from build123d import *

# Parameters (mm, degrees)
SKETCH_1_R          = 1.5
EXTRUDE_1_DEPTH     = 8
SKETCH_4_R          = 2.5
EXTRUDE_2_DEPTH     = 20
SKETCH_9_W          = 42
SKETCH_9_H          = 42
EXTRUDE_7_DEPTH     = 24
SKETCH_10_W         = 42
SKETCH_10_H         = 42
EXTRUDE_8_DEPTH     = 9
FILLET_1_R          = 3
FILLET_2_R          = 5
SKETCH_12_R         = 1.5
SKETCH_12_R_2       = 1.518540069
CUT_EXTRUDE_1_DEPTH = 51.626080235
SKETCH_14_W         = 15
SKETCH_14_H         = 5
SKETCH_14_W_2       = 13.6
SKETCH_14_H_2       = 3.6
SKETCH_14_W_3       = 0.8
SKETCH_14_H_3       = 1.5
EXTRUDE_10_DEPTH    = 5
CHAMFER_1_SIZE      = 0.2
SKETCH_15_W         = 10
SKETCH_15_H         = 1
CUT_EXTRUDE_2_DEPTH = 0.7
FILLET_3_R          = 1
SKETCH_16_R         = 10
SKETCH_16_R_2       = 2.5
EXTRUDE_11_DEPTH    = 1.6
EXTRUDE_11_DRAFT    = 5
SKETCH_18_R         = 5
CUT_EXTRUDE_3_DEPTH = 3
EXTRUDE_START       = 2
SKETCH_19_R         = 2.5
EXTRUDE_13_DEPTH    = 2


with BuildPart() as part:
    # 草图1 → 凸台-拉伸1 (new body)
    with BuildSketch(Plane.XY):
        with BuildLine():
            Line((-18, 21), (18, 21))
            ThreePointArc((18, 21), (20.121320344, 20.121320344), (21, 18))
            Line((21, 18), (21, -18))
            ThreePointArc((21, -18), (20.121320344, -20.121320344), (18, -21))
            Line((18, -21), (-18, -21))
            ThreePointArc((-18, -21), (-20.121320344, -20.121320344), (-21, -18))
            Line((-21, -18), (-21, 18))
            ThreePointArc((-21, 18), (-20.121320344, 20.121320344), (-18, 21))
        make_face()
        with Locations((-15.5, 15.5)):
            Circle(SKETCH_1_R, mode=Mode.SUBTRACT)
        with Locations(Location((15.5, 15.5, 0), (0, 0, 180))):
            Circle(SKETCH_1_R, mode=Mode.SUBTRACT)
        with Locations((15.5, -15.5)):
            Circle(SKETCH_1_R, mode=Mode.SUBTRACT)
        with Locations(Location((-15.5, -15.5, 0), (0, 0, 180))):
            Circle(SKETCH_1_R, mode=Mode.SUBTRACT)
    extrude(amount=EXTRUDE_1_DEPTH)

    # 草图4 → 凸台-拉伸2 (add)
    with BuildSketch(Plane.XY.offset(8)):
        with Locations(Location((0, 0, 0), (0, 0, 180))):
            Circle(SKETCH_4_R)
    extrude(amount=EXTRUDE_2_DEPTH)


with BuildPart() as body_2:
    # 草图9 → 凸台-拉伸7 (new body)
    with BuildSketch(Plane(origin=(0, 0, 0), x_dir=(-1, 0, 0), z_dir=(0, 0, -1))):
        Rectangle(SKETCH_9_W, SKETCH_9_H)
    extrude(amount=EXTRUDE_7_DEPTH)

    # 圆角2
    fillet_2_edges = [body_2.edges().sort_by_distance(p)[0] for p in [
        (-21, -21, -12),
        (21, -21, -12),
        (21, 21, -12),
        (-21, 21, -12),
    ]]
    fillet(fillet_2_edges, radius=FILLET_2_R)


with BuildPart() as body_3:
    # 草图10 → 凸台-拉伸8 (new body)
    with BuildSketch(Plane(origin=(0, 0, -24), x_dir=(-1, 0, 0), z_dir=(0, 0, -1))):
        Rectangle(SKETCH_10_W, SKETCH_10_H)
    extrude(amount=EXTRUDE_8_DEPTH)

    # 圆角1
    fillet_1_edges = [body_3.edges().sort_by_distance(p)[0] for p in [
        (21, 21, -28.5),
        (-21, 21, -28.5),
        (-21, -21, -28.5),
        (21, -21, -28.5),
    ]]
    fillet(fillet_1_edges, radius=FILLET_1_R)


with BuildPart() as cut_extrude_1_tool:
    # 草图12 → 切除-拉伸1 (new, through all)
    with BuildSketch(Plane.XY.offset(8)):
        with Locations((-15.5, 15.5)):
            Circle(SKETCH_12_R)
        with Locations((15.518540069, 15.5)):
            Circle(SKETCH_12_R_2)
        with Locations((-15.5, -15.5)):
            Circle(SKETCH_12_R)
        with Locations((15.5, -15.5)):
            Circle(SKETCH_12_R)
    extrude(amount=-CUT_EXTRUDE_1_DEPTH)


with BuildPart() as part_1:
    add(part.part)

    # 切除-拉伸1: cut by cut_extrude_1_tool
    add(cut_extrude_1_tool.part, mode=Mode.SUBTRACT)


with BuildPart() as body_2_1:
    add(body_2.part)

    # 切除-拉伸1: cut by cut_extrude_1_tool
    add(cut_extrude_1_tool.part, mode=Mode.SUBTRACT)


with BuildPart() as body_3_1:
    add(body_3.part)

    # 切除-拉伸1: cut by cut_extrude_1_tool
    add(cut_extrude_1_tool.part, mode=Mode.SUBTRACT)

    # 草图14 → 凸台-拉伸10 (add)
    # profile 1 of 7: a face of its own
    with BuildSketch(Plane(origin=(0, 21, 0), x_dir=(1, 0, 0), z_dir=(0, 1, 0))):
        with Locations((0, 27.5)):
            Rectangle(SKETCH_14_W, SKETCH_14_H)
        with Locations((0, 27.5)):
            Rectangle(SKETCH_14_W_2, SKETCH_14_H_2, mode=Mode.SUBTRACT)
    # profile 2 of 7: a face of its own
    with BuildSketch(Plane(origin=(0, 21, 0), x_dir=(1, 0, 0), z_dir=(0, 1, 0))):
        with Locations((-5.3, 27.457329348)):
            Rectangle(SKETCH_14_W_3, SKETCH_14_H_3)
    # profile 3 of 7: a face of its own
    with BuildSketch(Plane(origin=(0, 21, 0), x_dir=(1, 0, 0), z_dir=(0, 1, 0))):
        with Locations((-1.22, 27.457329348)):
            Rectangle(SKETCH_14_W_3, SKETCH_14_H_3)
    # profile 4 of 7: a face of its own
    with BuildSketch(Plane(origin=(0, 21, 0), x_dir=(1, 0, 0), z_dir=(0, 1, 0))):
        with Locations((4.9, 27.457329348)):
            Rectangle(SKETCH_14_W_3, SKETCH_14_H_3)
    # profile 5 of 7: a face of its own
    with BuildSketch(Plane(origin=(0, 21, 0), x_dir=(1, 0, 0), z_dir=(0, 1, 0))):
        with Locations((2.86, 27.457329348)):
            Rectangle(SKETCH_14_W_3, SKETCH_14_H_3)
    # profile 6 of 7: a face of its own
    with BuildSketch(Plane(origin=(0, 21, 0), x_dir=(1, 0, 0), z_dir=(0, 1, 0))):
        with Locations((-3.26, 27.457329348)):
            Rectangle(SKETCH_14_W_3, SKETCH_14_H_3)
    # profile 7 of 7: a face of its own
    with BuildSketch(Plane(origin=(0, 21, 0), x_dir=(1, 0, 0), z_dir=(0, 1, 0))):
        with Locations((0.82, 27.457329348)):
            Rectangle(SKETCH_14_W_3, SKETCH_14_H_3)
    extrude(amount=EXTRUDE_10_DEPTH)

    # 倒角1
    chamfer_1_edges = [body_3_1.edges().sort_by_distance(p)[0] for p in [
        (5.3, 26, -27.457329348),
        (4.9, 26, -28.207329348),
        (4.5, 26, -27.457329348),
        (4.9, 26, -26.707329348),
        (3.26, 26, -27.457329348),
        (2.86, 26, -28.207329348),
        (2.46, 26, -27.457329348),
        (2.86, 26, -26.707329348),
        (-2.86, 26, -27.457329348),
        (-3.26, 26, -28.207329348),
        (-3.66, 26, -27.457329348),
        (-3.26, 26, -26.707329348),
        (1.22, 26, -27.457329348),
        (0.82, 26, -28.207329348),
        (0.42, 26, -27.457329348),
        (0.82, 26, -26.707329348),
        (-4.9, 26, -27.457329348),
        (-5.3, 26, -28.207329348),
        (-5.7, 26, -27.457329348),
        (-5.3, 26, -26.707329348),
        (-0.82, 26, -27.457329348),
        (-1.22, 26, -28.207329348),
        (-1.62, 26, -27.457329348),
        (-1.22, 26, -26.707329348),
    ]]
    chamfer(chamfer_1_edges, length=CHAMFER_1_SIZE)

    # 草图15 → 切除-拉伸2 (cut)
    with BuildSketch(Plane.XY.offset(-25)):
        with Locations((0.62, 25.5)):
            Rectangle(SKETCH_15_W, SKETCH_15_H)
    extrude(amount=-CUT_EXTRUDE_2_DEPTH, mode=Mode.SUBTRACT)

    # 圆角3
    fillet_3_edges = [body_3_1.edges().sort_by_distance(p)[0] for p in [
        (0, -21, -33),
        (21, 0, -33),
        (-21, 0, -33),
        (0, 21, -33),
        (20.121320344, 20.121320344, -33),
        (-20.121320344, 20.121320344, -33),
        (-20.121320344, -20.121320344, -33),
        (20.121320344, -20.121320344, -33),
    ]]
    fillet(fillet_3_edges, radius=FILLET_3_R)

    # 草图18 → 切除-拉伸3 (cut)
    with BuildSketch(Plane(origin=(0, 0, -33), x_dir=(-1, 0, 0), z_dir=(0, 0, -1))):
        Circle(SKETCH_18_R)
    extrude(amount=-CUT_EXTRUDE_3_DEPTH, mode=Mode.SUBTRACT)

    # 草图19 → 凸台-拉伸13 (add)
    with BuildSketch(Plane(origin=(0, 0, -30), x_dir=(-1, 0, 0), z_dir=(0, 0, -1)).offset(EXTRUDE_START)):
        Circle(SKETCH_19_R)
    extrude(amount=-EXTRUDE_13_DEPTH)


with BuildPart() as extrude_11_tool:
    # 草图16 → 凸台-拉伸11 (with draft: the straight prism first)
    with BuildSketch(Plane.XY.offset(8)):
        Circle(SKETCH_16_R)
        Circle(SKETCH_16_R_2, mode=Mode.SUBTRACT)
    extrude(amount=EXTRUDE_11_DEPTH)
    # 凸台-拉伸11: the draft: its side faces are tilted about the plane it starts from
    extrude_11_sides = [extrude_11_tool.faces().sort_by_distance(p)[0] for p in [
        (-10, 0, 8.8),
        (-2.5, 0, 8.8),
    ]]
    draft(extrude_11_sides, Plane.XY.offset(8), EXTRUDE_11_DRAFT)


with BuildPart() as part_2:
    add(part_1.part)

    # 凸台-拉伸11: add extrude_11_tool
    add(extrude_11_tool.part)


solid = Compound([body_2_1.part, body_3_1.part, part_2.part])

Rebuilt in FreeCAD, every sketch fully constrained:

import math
import FreeCAD as App
import Part
import Sketcher
Q = App.Units.Quantity


def edges_at(feature, points):
    """Names of the edges that pass closest to the given points."""
    edges = feature.Shape.Edges
    near = lambda p: min(range(len(edges)), key=lambda i: edges[i].distToShape(Part.Vertex(*p))[0])
    return sorted({f"Edge{near(p) + 1}" for p in points})


def faces_at(feature, points):
    """Names of the faces that lie closest to the given points."""
    faces = feature.Shape.Faces
    near = lambda p: min(range(len(faces)), key=lambda i: faces[i].distToShape(Part.Vertex(*p))[0])
    return sorted({f"Face{near(p) + 1}" for p in points})


def add_polygon(sketch, points):
    """Adds a closed chain of lines whose ends are joined by coincident constraints."""
    first, n = sketch.GeometryCount, len(points)
    for a, b in zip(points, points[1:] + points[:1]):
        sketch.addGeometry(Part.LineSegment(App.Vector(*a, 0), App.Vector(*b, 0)), False)
    for i in range(n):
        sketch.addConstraint(Sketcher.Constraint("Coincident", first + i, 2, first + (i + 1) % n, 1))

doc = App.newDocument("Part")
body = doc.addObject("PartDesign::Body", "Body")

sketch1 = body.newObject("Sketcher::SketchObject", "Sketch")
sketch1.AttachmentSupport = (doc.getObject("XY_Plane"), [""])
sketch1.MapMode = "FlatFace"
sketch1.addGeometry([
    Part.LineSegment(App.Vector(18, 21, 0), App.Vector(-18, 21, 0)),
    Part.ArcOfCircle(Part.Circle(App.Vector(-18, 18, 0), App.Vector(0, 0, 1), 3), math.radians(90), math.radians(180)),
    Part.LineSegment(App.Vector(-21, 18, 0), App.Vector(-21, -18, 0)),
    Part.ArcOfCircle(Part.Circle(App.Vector(-18, -18, 0), App.Vector(0, 0, 1), 3), math.radians(180), math.radians(270)),
    Part.LineSegment(App.Vector(-18, -21, 0), App.Vector(18, -21, 0)),
    Part.ArcOfCircle(Part.Circle(App.Vector(18, -18, 0), App.Vector(0, 0, 1), 3), math.radians(-90), math.radians(0)),
    Part.LineSegment(App.Vector(21, -18, 0), App.Vector(21, 18, 0)),
    Part.ArcOfCircle(Part.Circle(App.Vector(18, 18, 0), App.Vector(0, 0, 1), 3), math.radians(0), math.radians(90)),
    Part.Circle(App.Vector(15.5, -15.5, 0), App.Vector(0, 0, 1), 1.5),
    Part.Circle(App.Vector(-15.5, -15.5, 0), App.Vector(0, 0, 1), 1.5),
    Part.Circle(App.Vector(15.5, 15.5, 0), App.Vector(0, 0, 1), 1.5),
    Part.Circle(App.Vector(-15.5, 15.5, 0), App.Vector(0, 0, 1), 1.5),
], False)
sketch1.addConstraint([
    Sketcher.Constraint("Tangent", 0, 2, 1, 1),
    Sketcher.Constraint("Tangent", 1, 2, 2, 1),
    Sketcher.Constraint("Tangent", 2, 2, 3, 1),
    Sketcher.Constraint("Tangent", 3, 2, 4, 1),
    Sketcher.Constraint("Tangent", 4, 2, 5, 1),
    Sketcher.Constraint("Tangent", 5, 2, 6, 1),
    Sketcher.Constraint("Tangent", 6, 2, 7, 1),
    Sketcher.Constraint("Tangent", 7, 2, 0, 1),
    Sketcher.Constraint("Horizontal", 0),
    Sketcher.Constraint("Vertical", 2),
    Sketcher.Constraint("Horizontal", 4),
    Sketcher.Constraint("Vertical", 6),
    Sketcher.Constraint("Equal", 1, 3),
    Sketcher.Constraint("Equal", 3, 5),
    Sketcher.Constraint("Equal", 5, 7),
    Sketcher.Constraint("Equal", 8, 9),
    Sketcher.Constraint("Equal", 9, 10),
    Sketcher.Constraint("Equal", 10, 11),
    Sketcher.Constraint("Symmetric", 1, 3, 5, 3, -1, 1),
    Sketcher.Constraint("Symmetric", 9, 3, 10, 3, -1, 1),
    Sketcher.Constraint("Symmetric", 8, 3, 11, 3, -1, 1),
    Sketcher.Constraint("Symmetric", 8, 3, 9, 3, -2),
    Sketcher.Constraint("Equal", 4, 2),
    Sketcher.Constraint("Diameter", 8, Q("3 mm")),
    Sketcher.Constraint("Radius", 1, Q("3 mm")),
    Sketcher.Constraint("DistanceX", 0, 2, 0, 1, Q("36 mm")),
    Sketcher.Constraint("DistanceX", 9, 3, 8, 3, Q("31 mm")),
    Sketcher.Constraint("DistanceY", 8, 3, 10, 3, Q("31 mm")),
])
pad1 = body.newObject("PartDesign::Pad", "Pad")
pad1.Profile = sketch1
pad1.Length = 8

sketch2 = body.newObject("Sketcher::SketchObject", "Sketch001")
sketch2.AttachmentSupport = (doc.getObject("XY_Plane"), [""])
sketch2.MapMode = "FlatFace"
sketch2.AttachmentOffset = App.Placement(App.Vector(0, 0, 8), App.Rotation())
sketch2.addGeometry(Part.Circle(App.Vector(0, 0, 0), App.Vector(0, 0, 1), 2.5), False)
sketch2.addConstraint([
    Sketcher.Constraint("Coincident", 0, 3, -1, 1),
    Sketcher.Constraint("Diameter", 0, Q("5 mm")),
])
pad2 = body.newObject("PartDesign::Pad", "Pad001")
pad2.Profile = sketch2
pad2.Length = 20
body2 = doc.addObject("PartDesign::Body", "Body001")

sketch3 = body2.newObject("Sketcher::SketchObject", "Sketch002")
sketch3.AttachmentSupport = (doc.getObject("XY_Plane001"), [""])
sketch3.MapMode = "FlatFace"
add_polygon(sketch3, [(21, 21), (21, -21), (-21, -21), (-21, 21)])
sketch3.addConstraint([
    Sketcher.Constraint("Vertical", 0),
    Sketcher.Constraint("Horizontal", 1),
    Sketcher.Constraint("Vertical", 2),
    Sketcher.Constraint("Horizontal", 3),
    Sketcher.Constraint("Symmetric", 0, 2, 2, 2, -1, 1),
    Sketcher.Constraint("Equal", 3, 0),
    Sketcher.Constraint("DistanceX", 1, 2, 1, 1, Q("42 mm")),
])
pad3 = body2.newObject("PartDesign::Pad", "Pad002")
pad3.Profile = sketch3
pad3.Length = 24
pad3.Reversed = True
doc.recompute()

fillet = body2.newObject("PartDesign::Fillet", "Fillet")
fillet.Base = (pad3, edges_at(pad3, [
    (-21, -21, -12),
    (21, -21, -12),
    (21, 21, -12),
    (-21, 21, -12),
]))
fillet.Radius = 5
body3 = doc.addObject("PartDesign::Body", "Body002")

sketch4 = body3.newObject("Sketcher::SketchObject", "Sketch003")
sketch4.AttachmentSupport = (doc.getObject("XY_Plane002"), [""])
sketch4.MapMode = "FlatFace"
sketch4.AttachmentOffset = App.Placement(App.Vector(0, 0, -24), App.Rotation())
add_polygon(sketch4, [(21, 21), (21, -21), (-21, -21), (-21, 21)])
sketch4.addConstraint([
    Sketcher.Constraint("Vertical", 0),
    Sketcher.Constraint("Horizontal", 1),
    Sketcher.Constraint("Vertical", 2),
    Sketcher.Constraint("Horizontal", 3),
    Sketcher.Constraint("Symmetric", 0, 2, 2, 2, -1, 1),
    Sketcher.Constraint("Equal", 3, 0),
    Sketcher.Constraint("DistanceX", 1, 2, 1, 1, Q("42 mm")),
])
pad4 = body3.newObject("PartDesign::Pad", "Pad003")
pad4.Profile = sketch4
pad4.Length = 9
pad4.Reversed = True
doc.recompute()

fillet2 = body3.newObject("PartDesign::Fillet", "Fillet001")
fillet2.Base = (pad4, edges_at(pad4, [
    (21, 21, -28.5),
    (-21, 21, -28.5),
    (-21, -21, -28.5),
    (21, -21, -28.5),
]))
fillet2.Radius = 3
body4 = doc.addObject("PartDesign::Body", "Body003")
body4.AllowCompound = True

sketch5 = body4.newObject("Sketcher::SketchObject", "Sketch004")
sketch5.AttachmentSupport = (doc.getObject("XY_Plane003"), [""])
sketch5.MapMode = "FlatFace"
sketch5.AttachmentOffset = App.Placement(App.Vector(0, 0, 8), App.Rotation())
sketch5.addGeometry([
    Part.Circle(App.Vector(-15.5, 15.5, 0), App.Vector(0, 0, 1), 1.5),
    Part.Circle(App.Vector(15.5, 15.5, 0), App.Vector(0, 0, 1), 1.5),
    Part.Circle(App.Vector(-15.5, -15.5, 0), App.Vector(0, 0, 1), 1.5),
    Part.Circle(App.Vector(15.5, -15.5, 0), App.Vector(0, 0, 1), 1.5),
], False)
sketch5.addConstraint([
    Sketcher.Constraint("Equal", 0, 2),
    Sketcher.Constraint("Equal", 2, 3),
    Sketcher.Constraint("Symmetric", 0, 3, 3, 3, -1, 1),
    Sketcher.Constraint("Symmetric", 2, 3, 3, 3, -2),
    Sketcher.Constraint("Horizontal", 0, 3, 1, 3),
    Sketcher.Constraint("Diameter", 0, Q("3 mm")),
    Sketcher.Constraint("DistanceY", 2, 3, 0, 3, Q("31 mm")),
    Sketcher.Constraint("DistanceX", 2, 3, 3, 3, Q("31 mm")),
    Sketcher.Constraint("Diameter", 1, Q("3.03708 mm")),
    Sketcher.Constraint("DistanceX", -1, 1, 1, 3, Q("15.51854 mm")),
])
pad5 = body4.newObject("PartDesign::Pad", "Pad004")
pad5.Profile = sketch5
pad5.Length = 51.62608
pad5.Reversed = True
doc.recompute()

body5 = doc.addObject("PartDesign::Body", "Body004")
body5.BaseFeature = body4
boolean = body.newObject("PartDesign::Boolean", "Boolean")
boolean.Type = "Cut"
boolean.addObjects([body5])
doc.recompute()

body6 = doc.addObject("PartDesign::Body", "Body005")
body6.BaseFeature = body4
boolean2 = body2.newObject("PartDesign::Boolean", "Boolean001")
boolean2.Type = "Cut"
boolean2.addObjects([body6])
doc.recompute()

boolean3 = body3.newObject("PartDesign::Boolean", "Boolean002")
boolean3.Type = "Cut"
boolean3.addObjects([body4])

sketch6 = body3.newObject("Sketcher::SketchObject", "Sketch005")
sketch6.AttachmentSupport = (doc.getObject("XZ_Plane002"), [""])
sketch6.MapMode = "FlatFace"
sketch6.AttachmentOffset = App.Placement(App.Vector(0, 0, -21), App.Rotation())
add_polygon(sketch6, [(-7.5, -30), (-7.5, -25), (7.5, -25), (7.5, -30)])
add_polygon(sketch6, [(6.8, -25.7), (-6.8, -25.7), (-6.8, -29.3), (6.8, -29.3)])
add_polygon(sketch6, [(-5.7, -28.2), (-5.7, -26.7), (-4.9, -26.7), (-4.9, -28.2)])
add_polygon(sketch6, [(-1.6, -28.2), (-1.6, -26.7), (-0.8, -26.7), (-0.8, -28.2)])
add_polygon(sketch6, [(4.5, -28.2), (4.5, -26.7), (5.3, -26.7), (5.3, -28.2)])
add_polygon(sketch6, [(2.5, -28.2), (2.5, -26.7), (3.3, -26.7), (3.3, -28.2)])
add_polygon(sketch6, [(-3.7, -28.2), (-3.7, -26.7), (-2.9, -26.7), (-2.9, -28.2)])
add_polygon(sketch6, [(0.4, -28.2), (0.4, -26.7), (1.2, -26.7), (1.2, -28.2)])
sketch6.addConstraint([
    Sketcher.Constraint("Vertical", 0),
    Sketcher.Constraint("Horizontal", 1),
    Sketcher.Constraint("Vertical", 2),
    Sketcher.Constraint("Horizontal", 3),
    Sketcher.Constraint("Horizontal", 4),
    Sketcher.Constraint("Vertical", 5),
    Sketcher.Constraint("Horizontal", 6),
    Sketcher.Constraint("Vertical", 7),
    Sketcher.Constraint("Vertical", 8),
    Sketcher.Constraint("Horizontal", 9),
    Sketcher.Constraint("Vertical", 10),
    Sketcher.Constraint("Horizontal", 11),
    Sketcher.Constraint("Vertical", 12),
    Sketcher.Constraint("Horizontal", 13),
    Sketcher.Constraint("Vertical", 14),
    Sketcher.Constraint("Horizontal", 15),
    Sketcher.Constraint("Vertical", 16),
    Sketcher.Constraint("Horizontal", 17),
    Sketcher.Constraint("Vertical", 18),
    Sketcher.Constraint("Horizontal", 19),
    Sketcher.Constraint("Vertical", 20),
    Sketcher.Constraint("Horizontal", 21),
    Sketcher.Constraint("Vertical", 22),
    Sketcher.Constraint("Horizontal", 23),
    Sketcher.Constraint("Vertical", 24),
    Sketcher.Constraint("Horizontal", 25),
    Sketcher.Constraint("Vertical", 26),
    Sketcher.Constraint("Horizontal", 27),
    Sketcher.Constraint("Vertical", 28),
    Sketcher.Constraint("Horizontal", 29),
    Sketcher.Constraint("Vertical", 30),
    Sketcher.Constraint("Horizontal", 31),
    Sketcher.Constraint("Horizontal", 9, 2, 12, 2),
    Sketcher.Constraint("Horizontal", 11, 2, 14, 2),
    Sketcher.Constraint("Horizontal", 13, 2, 16, 2),
    Sketcher.Constraint("Horizontal", 15, 2, 18, 2),
    Sketcher.Constraint("Horizontal", 17, 2, 20, 2),
    Sketcher.Constraint("Horizontal", 19, 2, 22, 2),
    Sketcher.Constraint("Horizontal", 21, 2, 24, 2),
    Sketcher.Constraint("Horizontal", 23, 2, 26, 2),
    Sketcher.Constraint("Horizontal", 25, 2, 28, 2),
    Sketcher.Constraint("Horizontal", 27, 2, 30, 2),
    Sketcher.Constraint("Equal", 11, 13),
    Sketcher.Constraint("Equal", 15, 17),
    Sketcher.Constraint("Equal", 19, 21),
    Sketcher.Constraint("Equal", 23, 25),
    Sketcher.Constraint("Equal", 27, 29),
    Sketcher.Constraint("DistanceX", 1, 1, 1, 2, Q("15 mm")),
    Sketcher.Constraint("DistanceY", 0, 1, 0, 2, Q("5 mm")),
    Sketcher.Constraint("DistanceX", 4, 2, 4, 1, Q("13.6 mm")),
    Sketcher.Constraint("DistanceX", 9, 1, 9, 2, Q("0.8 mm")),
    Sketcher.Constraint("DistanceY", 5, 2, 5, 1, Q("3.6 mm")),
    Sketcher.Constraint("DistanceY", 8, 1, 8, 2, Q("1.5 mm")),
    Sketcher.Constraint("DistanceY", 0, 2, -1, 1, Q("25 mm")),
    Sketcher.Constraint("DistanceX", 16, 2, 1, 2, Q("3 mm")),
    Sketcher.Constraint("DistanceX", 0, 2, -1, 1, Q("7.5 mm")),
    Sketcher.Constraint("DistanceX", 4, 2, -1, 1, Q("6.8 mm")),
    Sketcher.Constraint("DistanceY", 4, 2, -1, 1, Q("25.7 mm")),
    Sketcher.Constraint("DistanceX", 8, 2, -1, 1, Q("5.7 mm")),
    Sketcher.Constraint("DistanceX", 12, 2, -1, 1, Q("1.62 mm")),
    Sketcher.Constraint("DistanceX", -1, 1, 20, 2, Q("2.46 mm")),
    Sketcher.Constraint("DistanceX", 24, 2, -1, 1, Q("3.66 mm")),
    Sketcher.Constraint("DistanceX", -1, 1, 28, 2, Q("0.42 mm")),
    Sketcher.Constraint("DistanceY", 8, 2, -1, 1, Q("26.707329 mm")),
])
pad6 = body3.newObject("PartDesign::Pad", "Pad005")
pad6.Profile = sketch6
pad6.Length = 5
pad6.Reversed = True
doc.recompute()

chamfer = body3.newObject("PartDesign::Chamfer", "Chamfer")
chamfer.Base = (pad6, edges_at(pad6, [
    (5.3, 26, -27.457),
    (4.9, 26, -28.207),
    (4.5, 26, -27.457),
    (4.9, 26, -26.707),
    (3.26, 26, -27.457),
    (2.86, 26, -28.207),
    (2.46, 26, -27.457),
    (2.86, 26, -26.707),
    (-2.86, 26, -27.457),
    (-3.26, 26, -28.207),
    (-3.66, 26, -27.457),
    (-3.26, 26, -26.707),
    (1.22, 26, -27.457),
    (0.82, 26, -28.207),
    (0.42, 26, -27.457),
    (0.82, 26, -26.707),
    (-4.9, 26, -27.457),
    (-5.3, 26, -28.207),
    (-5.7, 26, -27.457),
    (-5.3, 26, -26.707),
    (-0.82, 26, -27.457),
    (-1.22, 26, -28.207),
    (-1.62, 26, -27.457),
    (-1.22, 26, -26.707),
]))
chamfer.Size = 0.2

sketch7 = body3.newObject("Sketcher::SketchObject", "Sketch006")
sketch7.AttachmentSupport = (doc.getObject("XY_Plane002"), [""])
sketch7.MapMode = "FlatFace"
sketch7.AttachmentOffset = App.Placement(App.Vector(0, 0, -25), App.Rotation())
add_polygon(sketch7, [(-4.4, 26), (-4.4, 25), (5.6, 25), (5.6, 26)])
sketch7.addConstraint([
    Sketcher.Constraint("Vertical", 0),
    Sketcher.Constraint("Horizontal", 1),
    Sketcher.Constraint("Vertical", 2),
    Sketcher.Constraint("Horizontal", 3),
    Sketcher.Constraint("DistanceX", 1, 1, 1, 2, Q("10 mm")),
    Sketcher.Constraint("DistanceY", 0, 2, 0, 1, Q("1 mm")),
    Sketcher.Constraint("DistanceY", -1, 1, 0, 2, Q("25 mm")),
    Sketcher.Constraint("DistanceX", 0, 2, -1, 1, Q("4.38 mm")),
])
pocket1 = body3.newObject("PartDesign::Pocket", "Pocket")
pocket1.Profile = sketch7
pocket1.Length = 0.7
doc.recompute()

fillet3 = body3.newObject("PartDesign::Fillet", "Fillet002")
fillet3.Base = (pocket1, edges_at(pocket1, [
    (0, -21, -33),
    (21, 0, -33),
    (-21, 0, -33),
    (0, 21, -33),
    (20.121, 20.121, -33),
    (-20.121, 20.121, -33),
    (-20.121, -20.121, -33),
    (20.121, -20.121, -33),
]))
fillet3.Radius = 1

sketch8 = body3.newObject("Sketcher::SketchObject", "Sketch007")
sketch8.AttachmentSupport = (doc.getObject("XY_Plane002"), [""])
sketch8.MapMode = "FlatFace"
sketch8.AttachmentOffset = App.Placement(App.Vector(0, 0, -33), App.Rotation())
sketch8.addGeometry(Part.Circle(App.Vector(0, 0, 0), App.Vector(0, 0, 1), 5), False)
sketch8.addConstraint([
    Sketcher.Constraint("Coincident", 0, 3, -1, 1),
    Sketcher.Constraint("Diameter", 0, Q("10 mm")),
])
pocket2 = body3.newObject("PartDesign::Pocket", "Pocket001")
pocket2.Profile = sketch8
pocket2.Length = 3
pocket2.Reversed = True

sketch9 = body3.newObject("Sketcher::SketchObject", "Sketch008")
sketch9.AttachmentSupport = (doc.getObject("XY_Plane002"), [""])
sketch9.MapMode = "FlatFace"
sketch9.AttachmentOffset = App.Placement(App.Vector(0, 0, -32), App.Rotation())
sketch9.addGeometry(Part.Circle(App.Vector(0, 0, 0), App.Vector(0, 0, 1), 2.5), False)
sketch9.addConstraint([
    Sketcher.Constraint("Coincident", 0, 3, -1, 1),
    Sketcher.Constraint("Diameter", 0, Q("5 mm")),
])
pad7 = body3.newObject("PartDesign::Pad", "Pad006")
pad7.Profile = sketch9
pad7.Length = 2
body7 = doc.addObject("PartDesign::Body", "Body006")

sketch10 = body7.newObject("Sketcher::SketchObject", "Sketch009")
sketch10.AttachmentSupport = (doc.getObject("XY_Plane006"), [""])
sketch10.MapMode = "FlatFace"
sketch10.AttachmentOffset = App.Placement(App.Vector(0, 0, 8), App.Rotation())
sketch10.addGeometry([
    Part.Circle(App.Vector(0, 0, 0), App.Vector(0, 0, 1), 10),
    Part.Circle(App.Vector(0, 0, 0), App.Vector(0, 0, 1), 2.5),
], False)
sketch10.addConstraint([
    Sketcher.Constraint("Coincident", 0, 3, -1, 1),
    Sketcher.Constraint("Coincident", 1, 3, -1, 1),
    Sketcher.Constraint("Diameter", 0, Q("20 mm")),
    Sketcher.Constraint("Diameter", 1, Q("5 mm")),
])
pad8 = body7.newObject("PartDesign::Pad", "Pad007")
pad8.Profile = sketch10
pad8.Length = 1.6
doc.recompute()

datumplane = body7.newObject("PartDesign::Plane", "DatumPlane")
datumplane.AttachmentSupport = (doc.getObject("XY_Plane006"), [""])
datumplane.MapMode = "FlatFace"
datumplane.AttachmentOffset = App.Placement(App.Vector(0, 0, 8), App.Rotation())
draft = body7.newObject("PartDesign::Draft", "Draft")
draft.Base = (pad8, faces_at(pad8, [(-10, 0, 8.8), (-2.5, 0, 8.8)]))
draft.NeutralPlane = (datumplane, [""])
draft.Angle = 5
draft.Reversed = False
doc.recompute()

boolean4 = body.newObject("PartDesign::Boolean", "Boolean003")
boolean4.Type = "Fuse"
boolean4.addObjects([body7])

doc.recompute()
